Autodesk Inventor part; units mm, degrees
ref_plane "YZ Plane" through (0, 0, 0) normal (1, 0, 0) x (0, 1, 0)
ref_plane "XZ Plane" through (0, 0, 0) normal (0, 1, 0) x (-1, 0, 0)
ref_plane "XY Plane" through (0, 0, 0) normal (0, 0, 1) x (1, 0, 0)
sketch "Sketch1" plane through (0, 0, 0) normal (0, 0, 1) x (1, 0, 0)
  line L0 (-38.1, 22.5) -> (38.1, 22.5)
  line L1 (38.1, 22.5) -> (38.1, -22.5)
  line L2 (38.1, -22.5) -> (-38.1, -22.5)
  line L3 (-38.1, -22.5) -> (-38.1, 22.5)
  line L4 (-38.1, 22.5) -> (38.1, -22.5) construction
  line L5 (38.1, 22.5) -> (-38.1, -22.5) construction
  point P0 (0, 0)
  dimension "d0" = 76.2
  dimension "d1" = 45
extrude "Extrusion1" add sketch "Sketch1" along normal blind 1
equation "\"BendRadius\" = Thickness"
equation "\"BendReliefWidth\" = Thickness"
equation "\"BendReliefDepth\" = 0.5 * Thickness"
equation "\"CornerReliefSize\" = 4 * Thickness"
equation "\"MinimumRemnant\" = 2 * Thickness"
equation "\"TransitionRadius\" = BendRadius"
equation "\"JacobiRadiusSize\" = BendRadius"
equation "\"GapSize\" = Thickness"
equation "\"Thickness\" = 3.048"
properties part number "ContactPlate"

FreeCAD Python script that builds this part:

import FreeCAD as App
import Part
import Sketcher

V = App.Vector

doc = App.newDocument("Part")
body = doc.addObject("PartDesign::Body", "Body")

sketch1 = body.newObject("Sketcher::SketchObject", "Sketch")
sketch1.AttachmentSupport = (doc.getObject("XY_Plane"), [""])
sketch1.MapMode = "FlatFace"
sketch1.addGeometry(Part.LineSegment(V(38, 22, 0), V(-38, 22, 0)), False)
sketch1.addGeometry(Part.LineSegment(V(-38, 22, 0), V(-38, -22, 0)), False)
sketch1.addGeometry(Part.LineSegment(V(-38, -22, 0), V(38, -22, 0)), False)
sketch1.addGeometry(Part.LineSegment(V(38, -22, 0), V(38, 22, 0)), False)
sketch1.addConstraint(Sketcher.Constraint("Coincident", 0, 2, 1, 1))
sketch1.addConstraint(Sketcher.Constraint("Coincident", 1, 2, 2, 1))
sketch1.addConstraint(Sketcher.Constraint("Coincident", 2, 2, 3, 1))
sketch1.addConstraint(Sketcher.Constraint("Coincident", 3, 2, 0, 1))
sketch1.addConstraint(Sketcher.Constraint("Horizontal", 0))
sketch1.addConstraint(Sketcher.Constraint("Vertical", 1))
sketch1.addConstraint(Sketcher.Constraint("Horizontal", 2))
sketch1.addConstraint(Sketcher.Constraint("Vertical", 3))
sketch1.addConstraint(Sketcher.Constraint("Symmetric", 0, 2, 2, 2, -1, 1))
sketch1.addConstraint(Sketcher.Constraint("DistanceY", 1, 2, 1, 1, 45.0))
sketch1.addConstraint(Sketcher.Constraint("DistanceX", 0, 2, 0, 1, 76.2))
pad1 = body.newObject("PartDesign::Pad", "Pad")
pad1.Profile = sketch1
pad1.Length = 1

doc.recompute()
